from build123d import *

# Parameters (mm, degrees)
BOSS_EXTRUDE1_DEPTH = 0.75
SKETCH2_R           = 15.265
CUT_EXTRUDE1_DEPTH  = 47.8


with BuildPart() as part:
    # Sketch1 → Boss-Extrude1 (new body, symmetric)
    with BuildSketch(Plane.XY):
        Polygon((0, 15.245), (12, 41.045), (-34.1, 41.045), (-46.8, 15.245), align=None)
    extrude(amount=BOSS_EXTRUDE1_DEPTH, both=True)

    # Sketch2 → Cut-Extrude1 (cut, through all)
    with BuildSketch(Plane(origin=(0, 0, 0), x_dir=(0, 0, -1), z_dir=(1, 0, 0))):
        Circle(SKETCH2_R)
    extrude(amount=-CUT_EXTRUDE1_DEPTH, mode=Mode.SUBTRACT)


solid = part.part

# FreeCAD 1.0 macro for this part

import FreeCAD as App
import Part
import Sketcher

V = App.Vector

doc = App.newDocument("Part")
body = doc.addObject("PartDesign::Body", "Body")

# Sketch on XY plane
sketch1 = doc.addObject("Sketcher::SketchObject", "Sketch")
body.addObject(sketch1)
sketch1.AttachmentSupport = (doc.XY_Plane, [""])
sketch1.MapMode = "FlatFace"
sketch1.addGeometry(Part.LineSegment(V(0, 15.245, 0), V(12, 41.045, 0)), False)
sketch1.addGeometry(Part.LineSegment(V(12, 41.045, 0), V(-34.1, 41.045, 0)), False)
sketch1.addGeometry(Part.LineSegment(V(-34.1, 41.045, 0), V(-46.8, 15.245, 0)), False)
sketch1.addGeometry(Part.LineSegment(V(-46.8, 15.245, 0), V(0, 15.245, 0)), False)
sketch1.addConstraint(Sketcher.Constraint("Coincident", 0, 2, 1, 1))
sketch1.addConstraint(Sketcher.Constraint("Coincident", 1, 2, 2, 1))
sketch1.addConstraint(Sketcher.Constraint("Coincident", 2, 2, 3, 1))
sketch1.addConstraint(Sketcher.Constraint("Coincident", 3, 2, 0, 1))
sketch1.addConstraint(Sketcher.Constraint("Horizontal", 1))
sketch1.addConstraint(Sketcher.Constraint("Horizontal", 3))
sketch1.addConstraint(Sketcher.Constraint("PointOnObject", 3, 2, -2))
sketch1.addConstraint(Sketcher.Constraint("DistanceX", 1, 2, 1, 1, 46.1))
sketch1.addConstraint(Sketcher.Constraint("DistanceX", 3, 1, 3, 2, 46.8))
sketch1.addConstraint(Sketcher.Constraint("DistanceX", -1, 1, 0, 2, 12.0))
sketch1.addConstraint(Sketcher.Constraint("DistanceY", 2, 2, 1, 2, 25.8))
sketch1.addConstraint(Sketcher.Constraint("DistanceY", -1, 1, 0, 2, 41.045))
pad1 = doc.addObject("PartDesign::Pad", "Pad")
body.addObject(pad1)
pad1.Profile = sketch1
pad1.Length = 1.5
pad1.Midplane = True

# Sketch on YZ plane
sketch2 = doc.addObject("Sketcher::SketchObject", "Sketch001")
body.addObject(sketch2)
sketch2.AttachmentSupport = (doc.YZ_Plane, [""])
sketch2.MapMode = "FlatFace"
sketch2.addGeometry(Part.Circle(V(0, 0, 0), V(0, 0, 1), 15.265), False)
sketch2.addConstraint(Sketcher.Constraint("Coincident", 0, 3, -1, 1))
sketch2.addConstraint(Sketcher.Constraint("Diameter", 0, 30.53))
pocket1 = doc.addObject("PartDesign::Pocket", "Pocket")
body.addObject(pocket1)
pocket1.Profile = sketch2
pocket1.Type = "ThroughAll"

doc.recompute()
